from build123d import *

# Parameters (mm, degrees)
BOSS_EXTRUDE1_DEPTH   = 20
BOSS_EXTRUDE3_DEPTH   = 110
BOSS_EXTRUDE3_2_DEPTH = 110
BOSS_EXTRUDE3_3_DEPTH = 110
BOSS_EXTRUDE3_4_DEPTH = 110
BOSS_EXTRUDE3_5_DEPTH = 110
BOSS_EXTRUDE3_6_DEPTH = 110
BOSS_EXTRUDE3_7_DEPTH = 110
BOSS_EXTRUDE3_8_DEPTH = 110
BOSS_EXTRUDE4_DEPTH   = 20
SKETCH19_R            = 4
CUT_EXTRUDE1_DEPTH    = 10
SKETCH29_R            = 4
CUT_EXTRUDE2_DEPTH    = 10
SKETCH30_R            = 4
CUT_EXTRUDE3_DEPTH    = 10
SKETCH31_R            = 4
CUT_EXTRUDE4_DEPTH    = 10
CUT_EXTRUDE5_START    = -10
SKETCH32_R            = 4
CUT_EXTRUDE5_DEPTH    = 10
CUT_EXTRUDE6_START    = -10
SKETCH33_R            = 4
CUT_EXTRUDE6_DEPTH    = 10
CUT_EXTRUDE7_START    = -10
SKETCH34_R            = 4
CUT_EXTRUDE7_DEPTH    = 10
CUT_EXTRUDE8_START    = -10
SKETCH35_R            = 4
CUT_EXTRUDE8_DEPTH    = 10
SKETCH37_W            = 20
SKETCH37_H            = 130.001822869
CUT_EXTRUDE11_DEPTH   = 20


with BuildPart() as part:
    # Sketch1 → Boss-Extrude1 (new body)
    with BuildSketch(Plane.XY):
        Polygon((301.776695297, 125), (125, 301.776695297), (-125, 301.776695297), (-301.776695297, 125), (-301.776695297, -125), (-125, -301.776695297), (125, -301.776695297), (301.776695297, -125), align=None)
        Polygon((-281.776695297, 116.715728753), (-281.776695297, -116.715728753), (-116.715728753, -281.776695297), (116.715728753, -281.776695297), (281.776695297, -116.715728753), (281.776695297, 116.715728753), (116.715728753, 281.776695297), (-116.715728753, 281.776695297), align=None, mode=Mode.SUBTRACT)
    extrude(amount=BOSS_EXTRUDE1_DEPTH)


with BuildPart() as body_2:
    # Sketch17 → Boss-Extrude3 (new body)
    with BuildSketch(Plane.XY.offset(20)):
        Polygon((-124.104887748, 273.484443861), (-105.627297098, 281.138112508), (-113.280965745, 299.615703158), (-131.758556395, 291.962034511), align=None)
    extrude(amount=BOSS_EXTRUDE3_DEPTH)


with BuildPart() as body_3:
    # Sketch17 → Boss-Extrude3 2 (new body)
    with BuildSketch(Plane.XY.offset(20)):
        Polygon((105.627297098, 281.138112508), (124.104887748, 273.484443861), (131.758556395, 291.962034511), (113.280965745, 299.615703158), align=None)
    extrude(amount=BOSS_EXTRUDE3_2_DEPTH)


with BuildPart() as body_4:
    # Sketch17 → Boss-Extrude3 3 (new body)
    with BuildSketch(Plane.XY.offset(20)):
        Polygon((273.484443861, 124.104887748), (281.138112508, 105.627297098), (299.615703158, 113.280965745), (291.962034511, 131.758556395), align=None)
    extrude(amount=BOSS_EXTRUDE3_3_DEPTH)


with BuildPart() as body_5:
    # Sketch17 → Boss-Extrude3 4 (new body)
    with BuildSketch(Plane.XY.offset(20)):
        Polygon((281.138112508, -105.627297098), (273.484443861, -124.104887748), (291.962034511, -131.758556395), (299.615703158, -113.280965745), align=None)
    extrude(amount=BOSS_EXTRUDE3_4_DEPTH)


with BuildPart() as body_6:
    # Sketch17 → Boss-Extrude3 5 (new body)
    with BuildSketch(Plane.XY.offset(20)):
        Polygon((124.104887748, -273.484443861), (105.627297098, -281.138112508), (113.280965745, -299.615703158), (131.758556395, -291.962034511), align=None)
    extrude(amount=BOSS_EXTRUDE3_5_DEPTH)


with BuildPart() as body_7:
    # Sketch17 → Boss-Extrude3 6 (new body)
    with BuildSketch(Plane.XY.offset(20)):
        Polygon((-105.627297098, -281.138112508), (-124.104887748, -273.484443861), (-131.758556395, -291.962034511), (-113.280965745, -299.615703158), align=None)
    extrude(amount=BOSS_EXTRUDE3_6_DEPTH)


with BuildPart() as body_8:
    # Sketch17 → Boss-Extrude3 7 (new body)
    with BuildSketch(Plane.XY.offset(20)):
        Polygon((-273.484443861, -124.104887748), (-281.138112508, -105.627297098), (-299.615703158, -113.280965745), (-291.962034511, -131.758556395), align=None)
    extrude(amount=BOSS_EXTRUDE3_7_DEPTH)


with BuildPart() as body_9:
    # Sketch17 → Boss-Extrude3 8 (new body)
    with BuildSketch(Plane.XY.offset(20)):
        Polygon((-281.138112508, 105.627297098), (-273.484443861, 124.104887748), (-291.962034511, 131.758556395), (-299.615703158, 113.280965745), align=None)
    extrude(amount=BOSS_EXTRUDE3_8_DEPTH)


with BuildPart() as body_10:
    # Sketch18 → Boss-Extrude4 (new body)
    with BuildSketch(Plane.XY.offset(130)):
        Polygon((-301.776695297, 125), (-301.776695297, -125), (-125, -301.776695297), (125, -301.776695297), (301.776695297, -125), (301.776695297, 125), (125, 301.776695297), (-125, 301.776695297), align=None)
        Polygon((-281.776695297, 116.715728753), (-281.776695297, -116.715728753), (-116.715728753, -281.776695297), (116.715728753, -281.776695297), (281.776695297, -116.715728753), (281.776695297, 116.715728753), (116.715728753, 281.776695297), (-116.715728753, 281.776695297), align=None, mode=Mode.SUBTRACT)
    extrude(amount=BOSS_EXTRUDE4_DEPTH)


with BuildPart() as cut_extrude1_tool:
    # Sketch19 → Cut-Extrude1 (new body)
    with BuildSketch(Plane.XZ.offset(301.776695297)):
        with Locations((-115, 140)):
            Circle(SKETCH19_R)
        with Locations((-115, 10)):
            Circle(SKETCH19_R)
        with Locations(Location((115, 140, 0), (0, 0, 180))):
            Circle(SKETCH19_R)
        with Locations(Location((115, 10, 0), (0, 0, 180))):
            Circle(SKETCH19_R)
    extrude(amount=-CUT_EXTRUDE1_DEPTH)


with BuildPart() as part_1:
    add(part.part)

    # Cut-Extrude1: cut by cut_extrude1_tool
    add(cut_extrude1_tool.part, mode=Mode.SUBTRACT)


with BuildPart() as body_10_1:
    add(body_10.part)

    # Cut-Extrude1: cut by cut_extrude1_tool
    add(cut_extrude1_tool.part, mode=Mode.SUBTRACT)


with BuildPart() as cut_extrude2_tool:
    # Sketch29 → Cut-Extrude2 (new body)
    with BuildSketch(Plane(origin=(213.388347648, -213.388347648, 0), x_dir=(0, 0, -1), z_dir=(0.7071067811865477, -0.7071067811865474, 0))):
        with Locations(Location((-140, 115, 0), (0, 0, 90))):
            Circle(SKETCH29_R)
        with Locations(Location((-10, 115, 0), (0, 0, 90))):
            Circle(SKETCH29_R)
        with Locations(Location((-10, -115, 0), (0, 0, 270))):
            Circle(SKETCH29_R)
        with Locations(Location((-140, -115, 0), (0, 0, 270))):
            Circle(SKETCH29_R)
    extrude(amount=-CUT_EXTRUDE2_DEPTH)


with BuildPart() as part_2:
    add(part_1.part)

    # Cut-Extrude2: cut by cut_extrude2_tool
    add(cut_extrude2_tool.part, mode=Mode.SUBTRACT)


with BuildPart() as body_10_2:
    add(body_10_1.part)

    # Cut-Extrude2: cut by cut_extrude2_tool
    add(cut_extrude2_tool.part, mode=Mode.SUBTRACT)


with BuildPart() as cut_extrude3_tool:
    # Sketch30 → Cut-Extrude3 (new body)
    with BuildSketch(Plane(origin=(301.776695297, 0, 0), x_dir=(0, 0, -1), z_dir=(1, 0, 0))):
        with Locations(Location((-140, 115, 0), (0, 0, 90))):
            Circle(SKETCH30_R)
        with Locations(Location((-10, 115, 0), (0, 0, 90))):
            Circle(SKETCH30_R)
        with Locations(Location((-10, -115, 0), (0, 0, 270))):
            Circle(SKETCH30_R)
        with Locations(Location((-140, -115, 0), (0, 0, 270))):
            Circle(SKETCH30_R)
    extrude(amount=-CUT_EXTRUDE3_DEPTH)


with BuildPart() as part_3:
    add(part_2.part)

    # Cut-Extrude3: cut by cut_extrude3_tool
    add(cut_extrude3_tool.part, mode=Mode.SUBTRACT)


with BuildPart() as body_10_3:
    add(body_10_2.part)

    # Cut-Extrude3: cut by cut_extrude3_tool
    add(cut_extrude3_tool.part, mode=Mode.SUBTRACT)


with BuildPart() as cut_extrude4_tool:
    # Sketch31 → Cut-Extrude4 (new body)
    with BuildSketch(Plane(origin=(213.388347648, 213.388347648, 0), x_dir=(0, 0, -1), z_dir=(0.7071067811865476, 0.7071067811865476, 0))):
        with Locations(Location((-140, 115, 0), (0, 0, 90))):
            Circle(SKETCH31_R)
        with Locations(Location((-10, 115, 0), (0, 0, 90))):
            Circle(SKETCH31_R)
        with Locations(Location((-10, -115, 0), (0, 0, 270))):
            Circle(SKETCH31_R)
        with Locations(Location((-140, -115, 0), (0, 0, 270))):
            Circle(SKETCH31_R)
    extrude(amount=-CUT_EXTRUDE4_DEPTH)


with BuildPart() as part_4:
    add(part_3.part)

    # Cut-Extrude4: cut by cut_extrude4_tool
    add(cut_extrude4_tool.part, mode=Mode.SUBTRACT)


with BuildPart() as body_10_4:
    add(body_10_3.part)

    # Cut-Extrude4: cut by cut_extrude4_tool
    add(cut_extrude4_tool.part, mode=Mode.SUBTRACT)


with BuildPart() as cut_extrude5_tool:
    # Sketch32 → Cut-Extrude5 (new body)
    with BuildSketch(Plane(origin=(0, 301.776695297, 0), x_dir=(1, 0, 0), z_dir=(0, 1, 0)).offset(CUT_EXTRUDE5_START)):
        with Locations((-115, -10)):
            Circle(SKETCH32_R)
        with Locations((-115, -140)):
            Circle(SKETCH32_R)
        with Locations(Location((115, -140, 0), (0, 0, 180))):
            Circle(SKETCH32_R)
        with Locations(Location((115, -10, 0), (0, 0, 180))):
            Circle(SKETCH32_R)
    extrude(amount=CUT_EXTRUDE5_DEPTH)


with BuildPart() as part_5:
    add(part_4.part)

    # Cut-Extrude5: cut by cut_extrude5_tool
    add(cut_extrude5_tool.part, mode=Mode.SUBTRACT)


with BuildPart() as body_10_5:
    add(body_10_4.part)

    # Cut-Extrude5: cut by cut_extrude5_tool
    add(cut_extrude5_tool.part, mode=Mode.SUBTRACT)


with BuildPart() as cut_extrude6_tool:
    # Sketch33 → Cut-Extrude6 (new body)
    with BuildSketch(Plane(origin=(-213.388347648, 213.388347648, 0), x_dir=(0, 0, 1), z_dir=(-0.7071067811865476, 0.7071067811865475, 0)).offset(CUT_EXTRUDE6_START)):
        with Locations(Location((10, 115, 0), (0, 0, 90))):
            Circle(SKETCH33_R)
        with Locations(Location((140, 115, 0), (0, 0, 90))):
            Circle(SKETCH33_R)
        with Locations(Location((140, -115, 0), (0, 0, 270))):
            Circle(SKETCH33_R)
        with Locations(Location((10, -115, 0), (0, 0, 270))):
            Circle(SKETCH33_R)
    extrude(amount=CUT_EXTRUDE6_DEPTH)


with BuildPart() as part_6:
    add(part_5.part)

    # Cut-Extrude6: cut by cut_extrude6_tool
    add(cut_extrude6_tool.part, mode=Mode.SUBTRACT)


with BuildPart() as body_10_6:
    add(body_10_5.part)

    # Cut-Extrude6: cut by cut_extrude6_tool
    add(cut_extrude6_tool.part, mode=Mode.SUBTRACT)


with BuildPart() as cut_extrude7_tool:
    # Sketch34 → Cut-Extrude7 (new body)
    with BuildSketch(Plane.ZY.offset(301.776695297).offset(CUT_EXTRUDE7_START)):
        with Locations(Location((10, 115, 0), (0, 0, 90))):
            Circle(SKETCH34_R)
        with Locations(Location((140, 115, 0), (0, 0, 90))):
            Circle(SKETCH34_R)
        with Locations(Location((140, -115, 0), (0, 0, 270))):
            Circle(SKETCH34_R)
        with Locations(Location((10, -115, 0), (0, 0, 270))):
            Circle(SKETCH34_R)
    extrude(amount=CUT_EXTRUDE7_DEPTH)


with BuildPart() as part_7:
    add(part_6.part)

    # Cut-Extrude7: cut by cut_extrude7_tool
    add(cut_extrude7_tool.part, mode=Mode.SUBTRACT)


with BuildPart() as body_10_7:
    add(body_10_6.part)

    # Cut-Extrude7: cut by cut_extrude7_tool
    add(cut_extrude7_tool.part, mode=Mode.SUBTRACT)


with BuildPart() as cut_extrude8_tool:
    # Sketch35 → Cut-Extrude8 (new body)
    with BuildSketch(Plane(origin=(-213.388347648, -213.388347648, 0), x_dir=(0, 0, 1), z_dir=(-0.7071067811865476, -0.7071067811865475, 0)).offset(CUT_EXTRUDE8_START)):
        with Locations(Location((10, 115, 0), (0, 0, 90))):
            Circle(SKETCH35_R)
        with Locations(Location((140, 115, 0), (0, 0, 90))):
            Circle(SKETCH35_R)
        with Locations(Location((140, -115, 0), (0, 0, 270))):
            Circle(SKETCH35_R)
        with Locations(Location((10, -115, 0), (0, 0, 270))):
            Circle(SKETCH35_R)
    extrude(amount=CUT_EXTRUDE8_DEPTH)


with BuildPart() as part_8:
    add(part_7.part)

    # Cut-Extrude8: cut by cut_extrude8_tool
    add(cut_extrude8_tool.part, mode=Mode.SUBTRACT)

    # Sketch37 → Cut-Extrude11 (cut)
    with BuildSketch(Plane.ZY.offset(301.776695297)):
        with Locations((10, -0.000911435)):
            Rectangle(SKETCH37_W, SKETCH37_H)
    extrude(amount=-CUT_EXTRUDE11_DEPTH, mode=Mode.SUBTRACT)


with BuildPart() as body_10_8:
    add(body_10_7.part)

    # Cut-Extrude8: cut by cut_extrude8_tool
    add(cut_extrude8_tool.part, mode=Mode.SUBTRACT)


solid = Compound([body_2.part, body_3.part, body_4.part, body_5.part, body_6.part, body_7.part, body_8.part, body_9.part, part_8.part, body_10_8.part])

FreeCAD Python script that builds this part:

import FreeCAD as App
import Part
import Sketcher
Q = App.Units.Quantity

doc = App.newDocument("Part")
body = doc.addObject("PartDesign::Body", "Body")

sketch1 = body.newObject("Sketcher::SketchObject", "Sketch")
sketch1.AttachmentSupport = (doc.getObject("XY_Plane"), [""])
sketch1.MapMode = "FlatFace"
sketch1.addGeometry([
    Part.LineSegment(App.Vector(301.776695, 125, 0), App.Vector(125, 301.776695, 0)),
    Part.LineSegment(App.Vector(125, 301.776695, 0), App.Vector(-125, 301.776695, 0)),
    Part.LineSegment(App.Vector(-125, 301.776695, 0), App.Vector(-301.776695, 125, 0)),
    Part.LineSegment(App.Vector(-301.776695, 125, 0), App.Vector(-301.776695, -125, 0)),
    Part.LineSegment(App.Vector(-301.776695, -125, 0), App.Vector(-125, -301.776695, 0)),
    Part.LineSegment(App.Vector(-125, -301.776695, 0), App.Vector(125, -301.776695, 0)),
    Part.LineSegment(App.Vector(125, -301.776695, 0), App.Vector(301.776695, -125, 0)),
    Part.LineSegment(App.Vector(301.776695, -125, 0), App.Vector(301.776695, 125, 0)),
    Part.LineSegment(App.Vector(-281.776695, -116.715729, 0), App.Vector(-281.776695, 116.715729, 0)),
    Part.LineSegment(App.Vector(-281.776695, 116.715729, 0), App.Vector(-116.715729, 281.776695, 0)),
    Part.LineSegment(App.Vector(-116.715729, 281.776695, 0), App.Vector(116.715729, 281.776695, 0)),
    Part.LineSegment(App.Vector(116.715729, 281.776695, 0), App.Vector(281.776695, 116.715729, 0)),
    Part.LineSegment(App.Vector(281.776695, 116.715729, 0), App.Vector(281.776695, -116.715729, 0)),
    Part.LineSegment(App.Vector(281.776695, -116.715729, 0), App.Vector(116.715729, -281.776695, 0)),
    Part.LineSegment(App.Vector(116.715729, -281.776695, 0), App.Vector(-116.715729, -281.776695, 0)),
    Part.LineSegment(App.Vector(-116.715729, -281.776695, 0), App.Vector(-281.776695, -116.715729, 0)),
], False)
sketch1.addConstraint([
    Sketcher.Constraint("Coincident", 0, 2, 1, 1),
    Sketcher.Constraint("Coincident", 1, 2, 2, 1),
    Sketcher.Constraint("Coincident", 2, 2, 3, 1),
    Sketcher.Constraint("Coincident", 3, 2, 4, 1),
    Sketcher.Constraint("Coincident", 4, 2, 5, 1),
    Sketcher.Constraint("Coincident", 5, 2, 6, 1),
    Sketcher.Constraint("Coincident", 6, 2, 7, 1),
    Sketcher.Constraint("Coincident", 7, 2, 0, 1),
    Sketcher.Constraint("Coincident", 8, 2, 9, 1),
    Sketcher.Constraint("Coincident", 9, 2, 10, 1),
    Sketcher.Constraint("Coincident", 10, 2, 11, 1),
    Sketcher.Constraint("Coincident", 11, 2, 12, 1),
    Sketcher.Constraint("Coincident", 12, 2, 13, 1),
    Sketcher.Constraint("Coincident", 13, 2, 14, 1),
    Sketcher.Constraint("Coincident", 14, 2, 15, 1),
    Sketcher.Constraint("Coincident", 15, 2, 8, 1),
    Sketcher.Constraint("Horizontal", 1),
    Sketcher.Constraint("Vertical", 3),
    Sketcher.Constraint("Horizontal", 5),
    Sketcher.Constraint("Vertical", 7),
    Sketcher.Constraint("Vertical", 8),
    Sketcher.Constraint("Horizontal", 10),
    Sketcher.Constraint("Vertical", 12),
    Sketcher.Constraint("Horizontal", 14),
    Sketcher.Constraint("Symmetric", 0, 2, 4, 2, -1, 1),
    Sketcher.Constraint("Symmetric", 2, 2, 6, 2, -1, 1),
    Sketcher.Constraint("Symmetric", 8, 2, 12, 2, -1, 1),
    Sketcher.Constraint("Symmetric", 9, 2, 13, 2, -1, 1),
    Sketcher.Constraint("Perpendicular", 0, 2),
    Sketcher.Constraint("Perpendicular", 2, 4),
    Sketcher.Constraint("Perpendicular", 4, 6),
    Sketcher.Constraint("Parallel", 6, 9),
    Sketcher.Constraint("Perpendicular", 9, 11),
    Sketcher.Constraint("Perpendicular", 13, 15),
    Sketcher.Constraint("Horizontal", 3, 2, 6, 2),
    Sketcher.Constraint("Horizontal", 8, 2, 11, 2),
    Sketcher.Constraint("Horizontal", 12, 2, 15, 2),
    Sketcher.Constraint("Vertical", 1, 2, 4, 2),
    Sketcher.Constraint("Equal", 5, 3),
    Sketcher.Constraint("Equal", 14, 8),
    Sketcher.Constraint("DistanceX", 1, 2, 1, 1, Q("250 mm")),
    Sketcher.Constraint("Distance", 0, Q("250 mm")),
    Sketcher.Constraint("DistanceX", 2, 2, 8, 2, Q("20 mm")),
    Sketcher.Constraint("DistanceX", 10, 1, 10, 2, Q("233.431458 mm")),
])
pad1 = body.newObject("PartDesign::Pad", "Pad")
pad1.Profile = sketch1
pad1.Length = 20
body2 = doc.addObject("PartDesign::Body", "Body001")

sketch2 = body2.newObject("Sketcher::SketchObject", "Sketch001")
sketch2.AttachmentSupport = (doc.getObject("XY_Plane001"), [""])
sketch2.MapMode = "FlatFace"
sketch2.AttachmentOffset = App.Placement(App.Vector(0, 0, 20), App.Rotation())
sketch2.addGeometry([
    Part.LineSegment(App.Vector(-124.104888, 273.484444, 0), App.Vector(-105.627297, 281.138113, 0)),
    Part.LineSegment(App.Vector(-105.627297, 281.138113, 0), App.Vector(-113.280966, 299.615703, 0)),
    Part.LineSegment(App.Vector(-113.280966, 299.615703, 0), App.Vector(-131.758556, 291.962035, 0)),
    Part.LineSegment(App.Vector(-131.758556, 291.962035, 0), App.Vector(-124.104888, 273.484444, 0)),
], False)
sketch2.addConstraint([
    Sketcher.Constraint("Coincident", 0, 2, 1, 1),
    Sketcher.Constraint("Coincident", 1, 2, 2, 1),
    Sketcher.Constraint("Coincident", 2, 2, 3, 1),
    Sketcher.Constraint("Coincident", 3, 2, 0, 1),
    Sketcher.Constraint("Perpendicular", 0, 1),
    Sketcher.Constraint("Perpendicular", 1, 2),
    Sketcher.Constraint("Perpendicular", 2, 3),
    Sketcher.Constraint("Equal", 0, 1),
    Sketcher.Constraint("Distance", 0, Q("20 mm")),
    Sketcher.Constraint("Angle", 0, Q("22.5 deg")),
    Sketcher.Constraint("DistanceX", 0, 2, -1, 1, Q("105.627297 mm")),
    Sketcher.Constraint("DistanceY", -1, 1, 0, 2, Q("281.138113 mm")),
])
pad2 = body2.newObject("PartDesign::Pad", "Pad001")
pad2.Profile = sketch2
pad2.Length = 110
body3 = doc.addObject("PartDesign::Body", "Body002")

sketch3 = body3.newObject("Sketcher::SketchObject", "Sketch002")
sketch3.AttachmentSupport = (doc.getObject("XY_Plane002"), [""])
sketch3.MapMode = "FlatFace"
sketch3.AttachmentOffset = App.Placement(App.Vector(0, 0, 20), App.Rotation())
sketch3.addGeometry([
    Part.LineSegment(App.Vector(105.627297, 281.138113, 0), App.Vector(124.104888, 273.484444, 0)),
    Part.LineSegment(App.Vector(124.104888, 273.484444, 0), App.Vector(131.758556, 291.962035, 0)),
    Part.LineSegment(App.Vector(131.758556, 291.962035, 0), App.Vector(113.280966, 299.615703, 0)),
    Part.LineSegment(App.Vector(113.280966, 299.615703, 0), App.Vector(105.627297, 281.138113, 0)),
], False)
sketch3.addConstraint([
    Sketcher.Constraint("Coincident", 0, 2, 1, 1),
    Sketcher.Constraint("Coincident", 1, 2, 2, 1),
    Sketcher.Constraint("Coincident", 2, 2, 3, 1),
    Sketcher.Constraint("Coincident", 3, 2, 0, 1),
    Sketcher.Constraint("Perpendicular", 0, 1),
    Sketcher.Constraint("Perpendicular", 1, 2),
    Sketcher.Constraint("Perpendicular", 2, 3),
    Sketcher.Constraint("Equal", 0, 1),
    Sketcher.Constraint("Distance", 0, Q("20 mm")),
    Sketcher.Constraint("Angle", 0, Q("-22.5 deg")),
    Sketcher.Constraint("DistanceX", -1, 1, 0, 2, Q("124.104888 mm")),
    Sketcher.Constraint("DistanceY", -1, 1, 0, 2, Q("273.484444 mm")),
])
pad3 = body3.newObject("PartDesign::Pad", "Pad002")
pad3.Profile = sketch3
pad3.Length = 110
body4 = doc.addObject("PartDesign::Body", "Body003")

sketch4 = body4.newObject("Sketcher::SketchObject", "Sketch003")
sketch4.AttachmentSupport = (doc.getObject("XY_Plane003"), [""])
sketch4.MapMode = "FlatFace"
sketch4.AttachmentOffset = App.Placement(App.Vector(0, 0, 20), App.Rotation())
sketch4.addGeometry([
    Part.LineSegment(App.Vector(273.484444, 124.104888, 0), App.Vector(281.138113, 105.627297, 0)),
    Part.LineSegment(App.Vector(281.138113, 105.627297, 0), App.Vector(299.615703, 113.280966, 0)),
    Part.LineSegment(App.Vector(299.615703, 113.280966, 0), App.Vector(291.962035, 131.758556, 0)),
    Part.LineSegment(App.Vector(291.962035, 131.758556, 0), App.Vector(273.484444, 124.104888, 0)),
], False)
sketch4.addConstraint([
    Sketcher.Constraint("Coincident", 0, 2, 1, 1),
    Sketcher.Constraint("Coincident", 1, 2, 2, 1),
    Sketcher.Constraint("Coincident", 2, 2, 3, 1),
    Sketcher.Constraint("Coincident", 3, 2, 0, 1),
    Sketcher.Constraint("Perpendicular", 0, 1),
    Sketcher.Constraint("Perpendicular", 1, 2),
    Sketcher.Constraint("Perpendicular", 2, 3),
    Sketcher.Constraint("Equal", 0, 1),
    Sketcher.Constraint("Distance", 0, Q("20 mm")),
    Sketcher.Constraint("Angle", 0, Q("-67.5 deg")),
    Sketcher.Constraint("DistanceX", -1, 1, 0, 2, Q("281.138113 mm")),
    Sketcher.Constraint("DistanceY", -1, 1, 0, 2, Q("105.627297 mm")),
])
pad4 = body4.newObject("PartDesign::Pad", "Pad003")
pad4.Profile = sketch4
pad4.Length = 110
body5 = doc.addObject("PartDesign::Body", "Body004")

sketch5 = body5.newObject("Sketcher::SketchObject", "Sketch004")
sketch5.AttachmentSupport = (doc.getObject("XY_Plane004"), [""])
sketch5.MapMode = "FlatFace"
sketch5.AttachmentOffset = App.Placement(App.Vector(0, 0, 20), App.Rotation())
sketch5.addGeometry([
    Part.LineSegment(App.Vector(281.138113, -105.627297, 0), App.Vector(273.484444, -124.104888, 0)),
    Part.LineSegment(App.Vector(273.484444, -124.104888, 0), App.Vector(291.962035, -131.758556, 0)),
    Part.LineSegment(App.Vector(291.962035, -131.758556, 0), App.Vector(299.615703, -113.280966, 0)),
    Part.LineSegment(App.Vector(299.615703, -113.280966, 0), App.Vector(281.138113, -105.627297, 0)),
], False)
sketch5.addConstraint([
    Sketcher.Constraint("Coincident", 0, 2, 1, 1),
    Sketcher.Constraint("Coincident", 1, 2, 2, 1),
    Sketcher.Constraint("Coincident", 2, 2, 3, 1),
    Sketcher.Constraint("Coincident", 3, 2, 0, 1),
    Sketcher.Constraint("Perpendicular", 0, 1),
    Sketcher.Constraint("Perpendicular", 1, 2),
    Sketcher.Constraint("Perpendicular", 2, 3),
    Sketcher.Constraint("Equal", 0, 1),
    Sketcher.Constraint("Distance", 0, Q("20 mm")),
    Sketcher.Constraint("Angle", 0, Q("-112.5 deg")),
    Sketcher.Constraint("DistanceX", -1, 1, 0, 2, Q("273.484444 mm")),
    Sketcher.Constraint("DistanceY", 0, 2, -1, 1, Q("124.104888 mm")),
])
pad5 = body5.newObject("PartDesign::Pad", "Pad004")
pad5.Profile = sketch5
pad5.Length = 110
body6 = doc.addObject("PartDesign::Body", "Body005")

sketch6 = body6.newObject("Sketcher::SketchObject", "Sketch005")
sketch6.AttachmentSupport = (doc.getObject("XY_Plane005"), [""])
sketch6.MapMode = "FlatFace"
sketch6.AttachmentOffset = App.Placement(App.Vector(0, 0, 20), App.Rotation())
sketch6.addGeometry([
    Part.LineSegment(App.Vector(124.104888, -273.484444, 0), App.Vector(105.627297, -281.138113, 0)),
    Part.LineSegment(App.Vector(105.627297, -281.138113, 0), App.Vector(113.280966, -299.615703, 0)),
    Part.LineSegment(App.Vector(113.280966, -299.615703, 0), App.Vector(131.758556, -291.962035, 0)),
    Part.LineSegment(App.Vector(131.758556, -291.962035, 0), App.Vector(124.104888, -273.484444, 0)),
], False)
sketch6.addConstraint([
    Sketcher.Constraint("Coincident", 0, 2, 1, 1),
    Sketcher.Constraint("Coincident", 1, 2, 2, 1),
    Sketcher.Constraint("Coincident", 2, 2, 3, 1),
    Sketcher.Constraint("Coincident", 3, 2, 0, 1),
    Sketcher.Constraint("Perpendicular", 0, 1),
    Sketcher.Constraint("Perpendicular", 1, 2),
    Sketcher.Constraint("Perpendicular", 2, 3),
    Sketcher.Constraint("Equal", 0, 1),
    Sketcher.Constraint("Distance", 0, Q("20 mm")),
    Sketcher.Constraint("Angle", 0, Q("-157.5 deg")),
    Sketcher.Constraint("DistanceX", -1, 1, 0, 2, Q("105.627297 mm")),
    Sketcher.Constraint("DistanceY", 0, 2, -1, 1, Q("281.138113 mm")),
])
pad6 = body6.newObject("PartDesign::Pad", "Pad005")
pad6.Profile = sketch6
pad6.Length = 110
body7 = doc.addObject("PartDesign::Body", "Body006")

sketch7 = body7.newObject("Sketcher::SketchObject", "Sketch006")
sketch7.AttachmentSupport = (doc.getObject("XY_Plane006"), [""])
sketch7.MapMode = "FlatFace"
sketch7.AttachmentOffset = App.Placement(App.Vector(0, 0, 20), App.Rotation())
sketch7.addGeometry([
    Part.LineSegment(App.Vector(-105.627297, -281.138113, 0), App.Vector(-124.104888, -273.484444, 0)),
    Part.LineSegment(App.Vector(-124.104888, -273.484444, 0), App.Vector(-131.758556, -291.962035, 0)),
    Part.LineSegment(App.Vector(-131.758556, -291.962035, 0), App.Vector(-113.280966, -299.615703, 0)),
    Part.LineSegment(App.Vector(-113.280966, -299.615703, 0), App.Vector(-105.627297, -281.138113, 0)),
], False)
sketch7.addConstraint([
    Sketcher.Constraint("Coincident", 0, 2, 1, 1),
    Sketcher.Constraint("Coincident", 1, 2, 2, 1),
    Sketcher.Constraint("Coincident", 2, 2, 3, 1),
    Sketcher.Constraint("Coincident", 3, 2, 0, 1),
    Sketcher.Constraint("Perpendicular", 0, 1),
    Sketcher.Constraint("Perpendicular", 1, 2),
    Sketcher.Constraint("Perpendicular", 2, 3),
    Sketcher.Constraint("Equal", 0, 1),
    Sketcher.Constraint("Distance", 0, Q("20 mm")),
    Sketcher.Constraint("Angle", 0, Q("157.5 deg")),
    Sketcher.Constraint("DistanceX", 0, 2, -1, 1, Q("124.104888 mm")),
    Sketcher.Constraint("DistanceY", 0, 2, -1, 1, Q("273.484444 mm")),
])
pad7 = body7.newObject("PartDesign::Pad", "Pad006")
pad7.Profile = sketch7
pad7.Length = 110
body8 = doc.addObject("PartDesign::Body", "Body007")

sketch8 = body8.newObject("Sketcher::SketchObject", "Sketch007")
sketch8.AttachmentSupport = (doc.getObject("XY_Plane007"), [""])
sketch8.MapMode = "FlatFace"
sketch8.AttachmentOffset = App.Placement(App.Vector(0, 0, 20), App.Rotation())
sketch8.addGeometry([
    Part.LineSegment(App.Vector(-273.484444, -124.104888, 0), App.Vector(-281.138113, -105.627297, 0)),
    Part.LineSegment(App.Vector(-281.138113, -105.627297, 0), App.Vector(-299.615703, -113.280966, 0)),
    Part.LineSegment(App.Vector(-299.615703, -113.280966, 0), App.Vector(-291.962035, -131.758556, 0)),
    Part.LineSegment(App.Vector(-291.962035, -131.758556, 0), App.Vector(-273.484444, -124.104888, 0)),
], False)
sketch8.addConstraint([
    Sketcher.Constraint("Coincident", 0, 2, 1, 1),
    Sketcher.Constraint("Coincident", 1, 2, 2, 1),
    Sketcher.Constraint("Coincident", 2, 2, 3, 1),
    Sketcher.Constraint("Coincident", 3, 2, 0, 1),
    Sketcher.Constraint("Perpendicular", 0, 1),
    Sketcher.Constraint("Perpendicular", 1, 2),
    Sketcher.Constraint("Perpendicular", 2, 3),
    Sketcher.Constraint("Equal", 0, 1),
    Sketcher.Constraint("Distance", 0, Q("20 mm")),
    Sketcher.Constraint("Angle", 0, Q("112.5 deg")),
    Sketcher.Constraint("DistanceX", 0, 2, -1, 1, Q("281.138113 mm")),
    Sketcher.Constraint("DistanceY", 0, 2, -1, 1, Q("105.627297 mm")),
])
pad8 = body8.newObject("PartDesign::Pad", "Pad007")
pad8.Profile = sketch8
pad8.Length = 110
body9 = doc.addObject("PartDesign::Body", "Body008")

sketch9 = body9.newObject("Sketcher::SketchObject", "Sketch008")
sketch9.AttachmentSupport = (doc.getObject("XY_Plane008"), [""])
sketch9.MapMode = "FlatFace"
sketch9.AttachmentOffset = App.Placement(App.Vector(0, 0, 20), App.Rotation())
sketch9.addGeometry([
    Part.LineSegment(App.Vector(-281.138113, 105.627297, 0), App.Vector(-273.484444, 124.104888, 0)),
    Part.LineSegment(App.Vector(-273.484444, 124.104888, 0), App.Vector(-291.962035, 131.758556, 0)),
    Part.LineSegment(App.Vector(-291.962035, 131.758556, 0), App.Vector(-299.615703, 113.280966, 0)),
    Part.LineSegment(App.Vector(-299.615703, 113.280966, 0), App.Vector(-281.138113, 105.627297, 0)),
], False)
sketch9.addConstraint([
    Sketcher.Constraint("Coincident", 0, 2, 1, 1),
    Sketcher.Constraint("Coincident", 1, 2, 2, 1),
    Sketcher.Constraint("Coincident", 2, 2, 3, 1),
    Sketcher.Constraint("Coincident", 3, 2, 0, 1),
    Sketcher.Constraint("Perpendicular", 0, 1),
    Sketcher.Constraint("Perpendicular", 1, 2),
    Sketcher.Constraint("Perpendicular", 2, 3),
    Sketcher.Constraint("Equal", 0, 1),
    Sketcher.Constraint("Distance", 0, Q("20 mm")),
    Sketcher.Constraint("Angle", 0, Q("67.5 deg")),
    Sketcher.Constraint("DistanceX", 0, 2, -1, 1, Q("273.484444 mm")),
    Sketcher.Constraint("DistanceY", -1, 1, 0, 2, Q("124.104888 mm")),
])
pad9 = body9.newObject("PartDesign::Pad", "Pad008")
pad9.Profile = sketch9
pad9.Length = 110
body10 = doc.addObject("PartDesign::Body", "Body009")

sketch10 = body10.newObject("Sketcher::SketchObject", "Sketch009")
sketch10.AttachmentSupport = (doc.getObject("XY_Plane009"), [""])
sketch10.MapMode = "FlatFace"
sketch10.AttachmentOffset = App.Placement(App.Vector(0, 0, 130), App.Rotation())
sketch10.addGeometry([
    Part.LineSegment(App.Vector(-301.776695, 125, 0), App.Vector(-301.776695, -125, 0)),
    Part.LineSegment(App.Vector(-301.776695, -125, 0), App.Vector(-125, -301.776695, 0)),
    Part.LineSegment(App.Vector(-125, -301.776695, 0), App.Vector(125, -301.776695, 0)),
    Part.LineSegment(App.Vector(125, -301.776695, 0), App.Vector(301.776695, -125, 0)),
    Part.LineSegment(App.Vector(301.776695, -125, 0), App.Vector(301.776695, 125, 0)),
    Part.LineSegment(App.Vector(301.776695, 125, 0), App.Vector(125, 301.776695, 0)),
    Part.LineSegment(App.Vector(125, 301.776695, 0), App.Vector(-125, 301.776695, 0)),
    Part.LineSegment(App.Vector(-125, 301.776695, 0), App.Vector(-301.776695, 125, 0)),
    Part.LineSegment(App.Vector(-281.776695, -116.715729, 0), App.Vector(-281.776695, 116.715729, 0)),
    Part.LineSegment(App.Vector(-281.776695, 116.715729, 0), App.Vector(-116.715729, 281.776695, 0)),
    Part.LineSegment(App.Vector(-116.715729, 281.776695, 0), App.Vector(116.715729, 281.776695, 0)),
    Part.LineSegment(App.Vector(116.715729, 281.776695, 0), App.Vector(281.776695, 116.715729, 0)),
    Part.LineSegment(App.Vector(281.776695, 116.715729, 0), App.Vector(281.776695, -116.715729, 0)),
    Part.LineSegment(App.Vector(281.776695, -116.715729, 0), App.Vector(116.715729, -281.776695, 0)),
    Part.LineSegment(App.Vector(116.715729, -281.776695, 0), App.Vector(-116.715729, -281.776695, 0)),
    Part.LineSegment(App.Vector(-116.715729, -281.776695, 0), App.Vector(-281.776695, -116.715729, 0)),
], False)
sketch10.addConstraint([
    Sketcher.Constraint("Coincident", 0, 2, 1, 1),
    Sketcher.Constraint("Coincident", 1, 2, 2, 1),
    Sketcher.Constraint("Coincident", 2, 2, 3, 1),
    Sketcher.Constraint("Coincident", 3, 2, 4, 1),
    Sketcher.Constraint("Coincident", 4, 2, 5, 1),
    Sketcher.Constraint("Coincident", 5, 2, 6, 1),
    Sketcher.Constraint("Coincident", 6, 2, 7, 1),
    Sketcher.Constraint("Coincident", 7, 2, 0, 1),
    Sketcher.Constraint("Coincident", 8, 2, 9, 1),
    Sketcher.Constraint("Coincident", 9, 2, 10, 1),
    Sketcher.Constraint("Coincident", 10, 2, 11, 1),
    Sketcher.Constraint("Coincident", 11, 2, 12, 1),
    Sketcher.Constraint("Coincident", 12, 2, 13, 1),
    Sketcher.Constraint("Coincident", 13, 2, 14, 1),
    Sketcher.Constraint("Coincident", 14, 2, 15, 1),
    Sketcher.Constraint("Coincident", 15, 2, 8, 1),
    Sketcher.Constraint("Vertical", 0),
    Sketcher.Constraint("Horizontal", 2),
    Sketcher.Constraint("Vertical", 4),
    Sketcher.Constraint("Horizontal", 6),
    Sketcher.Constraint("Vertical", 8),
    Sketcher.Constraint("Horizontal", 10),
    Sketcher.Constraint("Vertical", 12),
    Sketcher.Constraint("Horizontal", 14),
    Sketcher.Constraint("Symmetric", 0, 2, 4, 2, -1, 1),
    Sketcher.Constraint("Symmetric", 1, 2, 5, 2, -1, 1),
    Sketcher.Constraint("Symmetric", 8, 2, 12, 2, -1, 1),
    Sketcher.Constraint("Symmetric", 9, 2, 13, 2, -1, 1),
    Sketcher.Constraint("Perpendicular", 1, 3),
    Sketcher.Constraint("Perpendicular", 5, 7),
    Sketcher.Constraint("Parallel", 7, 9),
    Sketcher.Constraint("Perpendicular", 9, 11),
    Sketcher.Constraint("Perpendicular", 13, 15),
    Sketcher.Constraint("Horizontal", 0, 2, 3, 2),
    Sketcher.Constraint("Horizontal", 4, 2, 7, 2),
    Sketcher.Constraint("Horizontal", 8, 2, 11, 2),
    Sketcher.Constraint("Horizontal", 12, 2, 15, 2),
    Sketcher.Constraint("Vertical", 2, 2, 5, 2),
    Sketcher.Constraint("Equal", 6, 0),
    Sketcher.Constraint("Equal", 14, 8),
    Sketcher.Constraint("DistanceX", 2, 1, 2, 2, Q("250 mm")),
    Sketcher.Constraint("Distance", 1, Q("250 mm")),
    Sketcher.Constraint("DistanceX", 7, 2, 8, 2, Q("20 mm")),
    Sketcher.Constraint("DistanceX", 10, 1, 10, 2, Q("233.431458 mm")),
])
pad10 = body10.newObject("PartDesign::Pad", "Pad009")
pad10.Profile = sketch10
pad10.Length = 20
body11 = doc.addObject("PartDesign::Body", "Body010")
body11.AllowCompound = True

sketch11 = body11.newObject("Sketcher::SketchObject", "Sketch010")
sketch11.AttachmentSupport = (doc.getObject("XZ_Plane010"), [""])
sketch11.MapMode = "FlatFace"
sketch11.AttachmentOffset = App.Placement(App.Vector(0, 0, 301.776695), App.Rotation())
sketch11.addGeometry([
    Part.Circle(App.Vector(-115, 140, 0), App.Vector(0, 0, 1), 4),
    Part.Circle(App.Vector(-115, 10, 0), App.Vector(0, 0, 1), 4),
    Part.Circle(App.Vector(115, 140, 0), App.Vector(0, 0, 1), 4),
    Part.Circle(App.Vector(115, 10, 0), App.Vector(0, 0, 1), 4),
], False)
sketch11.addConstraint([
    Sketcher.Constraint("Equal", 0, 1),
    Sketcher.Constraint("Equal", 1, 2),
    Sketcher.Constraint("Equal", 2, 3),
    Sketcher.Constraint("Symmetric", 0, 3, 2, 3, -2),
    Sketcher.Constraint("Symmetric", 1, 3, 3, 3, -2),
    Sketcher.Constraint("Vertical", 0, 3, 1, 3),
    Sketcher.Constraint("Diameter", 0, Q("8 mm")),
    Sketcher.Constraint("DistanceX", 0, 3, -1, 1, Q("115 mm")),
    Sketcher.Constraint("DistanceY", -1, 1, 0, 3, Q("140 mm")),
    Sketcher.Constraint("DistanceY", -1, 1, 1, 3, Q("10 mm")),
])
pad11 = body11.newObject("PartDesign::Pad", "Pad010")
pad11.Profile = sketch11
pad11.Length = 10
pad11.Reversed = True
doc.recompute()

body12 = doc.addObject("PartDesign::Body", "Body011")
body12.BaseFeature = body11
boolean = body.newObject("PartDesign::Boolean", "Boolean")
boolean.Type = "Cut"
boolean.addObjects([body12])
doc.recompute()

boolean2 = body10.newObject("PartDesign::Boolean", "Boolean001")
boolean2.Type = "Cut"
boolean2.addObjects([body11])
body13 = doc.addObject("PartDesign::Body", "Body012")
body13.AllowCompound = True

sketch12 = body13.newObject("Sketcher::SketchObject", "Sketch011")
sketch12.Placement = App.Placement(App.Vector(213.388348, -213.388348, 0), App.Rotation(App.Vector(0, 0, -1), App.Vector(0.707106781, 0.707106781, 0), App.Vector(0.707106781, -0.707106781, 0), "ZXY"))
sketch12.addGeometry([
    Part.Circle(App.Vector(-140, 115, 0), App.Vector(0, 0, 1), 4),
    Part.Circle(App.Vector(-10, 115, 0), App.Vector(0, 0, 1), 4),
    Part.Circle(App.Vector(-10, -115, 0), App.Vector(0, 0, 1), 4),
    Part.Circle(App.Vector(-140, -115, 0), App.Vector(0, 0, 1), 4),
], False)
sketch12.addConstraint([
    Sketcher.Constraint("Equal", 0, 1),
    Sketcher.Constraint("Equal", 1, 2),
    Sketcher.Constraint("Equal", 2, 3),
    Sketcher.Constraint("Symmetric", 1, 3, 2, 3, -1),
    Sketcher.Constraint("Symmetric", 0, 3, 3, 3, -1),
    Sketcher.Constraint("Horizontal", 0, 3, 1, 3),
    Sketcher.Constraint("Diameter", 0, Q("8 mm")),
    Sketcher.Constraint("DistanceX", 0, 3, -1, 1, Q("140 mm")),
    Sketcher.Constraint("DistanceY", -1, 1, 0, 3, Q("115 mm")),
    Sketcher.Constraint("DistanceX", 1, 3, -1, 1, Q("10 mm")),
])
pad12 = body13.newObject("PartDesign::Pad", "Pad011")
pad12.Profile = sketch12
pad12.Length = 10
pad12.Reversed = True
doc.recompute()

body14 = doc.addObject("PartDesign::Body", "Body013")
body14.BaseFeature = body13
boolean3 = body.newObject("PartDesign::Boolean", "Boolean002")
boolean3.Type = "Cut"
boolean3.addObjects([body14])
doc.recompute()

boolean4 = body10.newObject("PartDesign::Boolean", "Boolean003")
boolean4.Type = "Cut"
boolean4.addObjects([body13])
body15 = doc.addObject("PartDesign::Body", "Body014")
body15.AllowCompound = True

sketch13 = body15.newObject("Sketcher::SketchObject", "Sketch012")
sketch13.AttachmentSupport = (doc.getObject("YZ_Plane014"), [""])
sketch13.MapMode = "FlatFace"
sketch13.AttachmentOffset = App.Placement(App.Vector(0, 0, 301.776695), App.Rotation())
sketch13.addGeometry([
    Part.Circle(App.Vector(115, 140, 0), App.Vector(0, 0, 1), 4),
    Part.Circle(App.Vector(115, 10, 0), App.Vector(0, 0, 1), 4),
    Part.Circle(App.Vector(-115, 10, 0), App.Vector(0, 0, 1), 4),
    Part.Circle(App.Vector(-115, 140, 0), App.Vector(0, 0, 1), 4),
], False)
sketch13.addConstraint([
    Sketcher.Constraint("Equal", 0, 1),
    Sketcher.Constraint("Equal", 1, 2),
    Sketcher.Constraint("Equal", 2, 3),
    Sketcher.Constraint("Symmetric", 1, 3, 2, 3, -2),
    Sketcher.Constraint("Symmetric", 0, 3, 3, 3, -2),
    Sketcher.Constraint("Vertical", 0, 3, 1, 3),
    Sketcher.Constraint("Diameter", 0, Q("8 mm")),
    Sketcher.Constraint("DistanceX", -1, 1, 0, 3, Q("115 mm")),
    Sketcher.Constraint("DistanceY", -1, 1, 0, 3, Q("140 mm")),
    Sketcher.Constraint("DistanceY", -1, 1, 1, 3, Q("10 mm")),
])
pad13 = body15.newObject("PartDesign::Pad", "Pad012")
pad13.Profile = sketch13
pad13.Length = 10
pad13.Reversed = True
doc.recompute()

body16 = doc.addObject("PartDesign::Body", "Body015")
body16.BaseFeature = body15
boolean5 = body.newObject("PartDesign::Boolean", "Boolean004")
boolean5.Type = "Cut"
boolean5.addObjects([body16])
doc.recompute()

boolean6 = body10.newObject("PartDesign::Boolean", "Boolean005")
boolean6.Type = "Cut"
boolean6.addObjects([body15])
body17 = doc.addObject("PartDesign::Body", "Body016")
body17.AllowCompound = True

sketch14 = body17.newObject("Sketcher::SketchObject", "Sketch013")
sketch14.Placement = App.Placement(App.Vector(213.388348, 213.388348, 0), App.Rotation(App.Vector(0, 0, -1), App.Vector(-0.707106781, 0.707106781, 0), App.Vector(0.707106781, 0.707106781, 0), "ZXY"))
sketch14.addGeometry([
    Part.Circle(App.Vector(-140, 115, 0), App.Vector(0, 0, 1), 4),
    Part.Circle(App.Vector(-10, 115, 0), App.Vector(0, 0, 1), 4),
    Part.Circle(App.Vector(-10, -115, 0), App.Vector(0, 0, 1), 4),
    Part.Circle(App.Vector(-140, -115, 0), App.Vector(0, 0, 1), 4),
], False)
sketch14.addConstraint([
    Sketcher.Constraint("Equal", 0, 1),
    Sketcher.Constraint("Equal", 1, 2),
    Sketcher.Constraint("Equal", 2, 3),
    Sketcher.Constraint("Symmetric", 1, 3, 2, 3, -1),
    Sketcher.Constraint("Symmetric", 0, 3, 3, 3, -1),
    Sketcher.Constraint("Horizontal", 0, 3, 1, 3),
    Sketcher.Constraint("Diameter", 0, Q("8 mm")),
    Sketcher.Constraint("DistanceX", 0, 3, -1, 1, Q("140 mm")),
    Sketcher.Constraint("DistanceY", -1, 1, 0, 3, Q("115 mm")),
    Sketcher.Constraint("DistanceX", 1, 3, -1, 1, Q("10 mm")),
])
pad14 = body17.newObject("PartDesign::Pad", "Pad013")
pad14.Profile = sketch14
pad14.Length = 10
pad14.Reversed = True
doc.recompute()

body18 = doc.addObject("PartDesign::Body", "Body017")
body18.BaseFeature = body17
boolean7 = body.newObject("PartDesign::Boolean", "Boolean006")
boolean7.Type = "Cut"
boolean7.addObjects([body18])
doc.recompute()

boolean8 = body10.newObject("PartDesign::Boolean", "Boolean007")
boolean8.Type = "Cut"
boolean8.addObjects([body17])
body19 = doc.addObject("PartDesign::Body", "Body018")
body19.AllowCompound = True

sketch15 = body19.newObject("Sketcher::SketchObject", "Sketch014")
sketch15.AttachmentSupport = (doc.getObject("XZ_Plane018"), [""])
sketch15.MapMode = "FlatFace"
sketch15.AttachmentOffset = App.Placement(App.Vector(0, 0, -291.776695), App.Rotation())
sketch15.addGeometry([
    Part.Circle(App.Vector(-115, 10, 0), App.Vector(0, 0, 1), 4),
    Part.Circle(App.Vector(-115, 140, 0), App.Vector(0, 0, 1), 4),
    Part.Circle(App.Vector(115, 140, 0), App.Vector(0, 0, 1), 4),
    Part.Circle(App.Vector(115, 10, 0), App.Vector(0, 0, 1), 4),
], False)
sketch15.addConstraint([
    Sketcher.Constraint("Equal", 0, 1),
    Sketcher.Constraint("Equal", 1, 2),
    Sketcher.Constraint("Equal", 2, 3),
    Sketcher.Constraint("Symmetric", 1, 3, 2, 3, -2),
    Sketcher.Constraint("Symmetric", 0, 3, 3, 3, -2),
    Sketcher.Constraint("Vertical", 0, 3, 1, 3),
    Sketcher.Constraint("Diameter", 0, Q("8 mm")),
    Sketcher.Constraint("DistanceX", 0, 3, -1, 1, Q("115 mm")),
    Sketcher.Constraint("DistanceY", -1, 1, 0, 3, Q("10 mm")),
    Sketcher.Constraint("DistanceY", -1, 1, 1, 3, Q("140 mm")),
])
pad15 = body19.newObject("PartDesign::Pad", "Pad014")
pad15.Profile = sketch15
pad15.Length = 10
pad15.Reversed = True
doc.recompute()

body20 = doc.addObject("PartDesign::Body", "Body019")
body20.BaseFeature = body19
boolean9 = body.newObject("PartDesign::Boolean", "Boolean008")
boolean9.Type = "Cut"
boolean9.addObjects([body20])
doc.recompute()

boolean10 = body10.newObject("PartDesign::Boolean", "Boolean009")
boolean10.Type = "Cut"
boolean10.addObjects([body19])
body21 = doc.addObject("PartDesign::Body", "Body020")
body21.AllowCompound = True

sketch16 = body21.newObject("Sketcher::SketchObject", "Sketch015")
sketch16.Placement = App.Placement(App.Vector(-206.31728, 206.31728, 0), App.Rotation(App.Vector(0, 0, 1), App.Vector(0.707106781, 0.707106781, 0), App.Vector(-0.707106781, 0.707106781, 0), "ZXY"))
sketch16.addGeometry([
    Part.Circle(App.Vector(10, 115, 0), App.Vector(0, 0, 1), 4),
    Part.Circle(App.Vector(140, 115, 0), App.Vector(0, 0, 1), 4),
    Part.Circle(App.Vector(140, -115, 0), App.Vector(0, 0, 1), 4),
    Part.Circle(App.Vector(10, -115, 0), App.Vector(0, 0, 1), 4),
], False)
sketch16.addConstraint([
    Sketcher.Constraint("Equal", 0, 1),
    Sketcher.Constraint("Equal", 1, 2),
    Sketcher.Constraint("Equal", 2, 3),
    Sketcher.Constraint("Symmetric", 1, 3, 2, 3, -1),
    Sketcher.Constraint("Symmetric", 0, 3, 3, 3, -1),
    Sketcher.Constraint("Horizontal", 0, 3, 1, 3),
    Sketcher.Constraint("Diameter", 0, Q("8 mm")),
    Sketcher.Constraint("DistanceX", -1, 1, 0, 3, Q("10 mm")),
    Sketcher.Constraint("DistanceY", -1, 1, 0, 3, Q("115 mm")),
    Sketcher.Constraint("DistanceX", -1, 1, 1, 3, Q("140 mm")),
])
pad16 = body21.newObject("PartDesign::Pad", "Pad015")
pad16.Profile = sketch16
pad16.Length = 10
doc.recompute()

body22 = doc.addObject("PartDesign::Body", "Body021")
body22.BaseFeature = body21
boolean11 = body.newObject("PartDesign::Boolean", "Boolean010")
boolean11.Type = "Cut"
boolean11.addObjects([body22])
doc.recompute()

boolean12 = body10.newObject("PartDesign::Boolean", "Boolean011")
boolean12.Type = "Cut"
boolean12.addObjects([body21])
body23 = doc.addObject("PartDesign::Body", "Body022")
body23.AllowCompound = True

sketch17 = body23.newObject("Sketcher::SketchObject", "Sketch016")
sketch17.AttachmentSupport = (doc.getObject("YZ_Plane022"), [""])
sketch17.MapMode = "FlatFace"
sketch17.AttachmentOffset = App.Placement(App.Vector(0, 0, -291.776695), App.Rotation())
sketch17.addGeometry([
    Part.Circle(App.Vector(115, 10, 0), App.Vector(0, 0, 1), 4),
    Part.Circle(App.Vector(115, 140, 0), App.Vector(0, 0, 1), 4),
    Part.Circle(App.Vector(-115, 140, 0), App.Vector(0, 0, 1), 4),
    Part.Circle(App.Vector(-115, 10, 0), App.Vector(0, 0, 1), 4),
], False)
sketch17.addConstraint([
    Sketcher.Constraint("Equal", 0, 1),
    Sketcher.Constraint("Equal", 1, 2),
    Sketcher.Constraint("Equal", 2, 3),
    Sketcher.Constraint("Symmetric", 1, 3, 2, 3, -2),
    Sketcher.Constraint("Symmetric", 0, 3, 3, 3, -2),
    Sketcher.Constraint("Vertical", 0, 3, 1, 3),
    Sketcher.Constraint("Diameter", 0, Q("8 mm")),
    Sketcher.Constraint("DistanceX", -1, 1, 0, 3, Q("115 mm")),
    Sketcher.Constraint("DistanceY", -1, 1, 0, 3, Q("10 mm")),
    Sketcher.Constraint("DistanceY", -1, 1, 1, 3, Q("140 mm")),
])
pad17 = body23.newObject("PartDesign::Pad", "Pad016")
pad17.Profile = sketch17
pad17.Length = 10
pad17.Reversed = True
doc.recompute()

body24 = doc.addObject("PartDesign::Body", "Body023")
body24.BaseFeature = body23
boolean13 = body.newObject("PartDesign::Boolean", "Boolean012")
boolean13.Type = "Cut"
boolean13.addObjects([body24])
doc.recompute()

boolean14 = body10.newObject("PartDesign::Boolean", "Boolean013")
boolean14.Type = "Cut"
boolean14.addObjects([body23])
body25 = doc.addObject("PartDesign::Body", "Body024")
body25.AllowCompound = True

sketch18 = body25.newObject("Sketcher::SketchObject", "Sketch017")
sketch18.Placement = App.Placement(App.Vector(-206.31728, -206.31728, 0), App.Rotation(App.Vector(0, 0, 1), App.Vector(-0.707106781, 0.707106781, 0), App.Vector(-0.707106781, -0.707106781, 0), "ZXY"))
sketch18.addGeometry([
    Part.Circle(App.Vector(10, 115, 0), App.Vector(0, 0, 1), 4),
    Part.Circle(App.Vector(140, 115, 0), App.Vector(0, 0, 1), 4),
    Part.Circle(App.Vector(140, -115, 0), App.Vector(0, 0, 1), 4),
    Part.Circle(App.Vector(10, -115, 0), App.Vector(0, 0, 1), 4),
], False)
sketch18.addConstraint([
    Sketcher.Constraint("Equal", 0, 1),
    Sketcher.Constraint("Equal", 1, 2),
    Sketcher.Constraint("Equal", 2, 3),
    Sketcher.Constraint("Symmetric", 1, 3, 2, 3, -1),
    Sketcher.Constraint("Symmetric", 0, 3, 3, 3, -1),
    Sketcher.Constraint("Horizontal", 0, 3, 1, 3),
    Sketcher.Constraint("Diameter", 0, Q("8 mm")),
    Sketcher.Constraint("DistanceX", -1, 1, 0, 3, Q("10 mm")),
    Sketcher.Constraint("DistanceY", -1, 1, 0, 3, Q("115 mm")),
    Sketcher.Constraint("DistanceX", -1, 1, 1, 3, Q("140 mm")),
])
pad18 = body25.newObject("PartDesign::Pad", "Pad017")
pad18.Profile = sketch18
pad18.Length = 10
doc.recompute()

body26 = doc.addObject("PartDesign::Body", "Body025")
body26.BaseFeature = body25
boolean15 = body.newObject("PartDesign::Boolean", "Boolean014")
boolean15.Type = "Cut"
boolean15.addObjects([body26])
doc.recompute()

sketch19 = body.newObject("Sketcher::SketchObject", "Sketch018")
sketch19.AttachmentSupport = (doc.getObject("YZ_Plane"), [""])
sketch19.MapMode = "FlatFace"
sketch19.AttachmentOffset = App.Placement(App.Vector(0, 0, -301.776695), App.Rotation())
sketch19.addGeometry([
    Part.LineSegment(App.Vector(65, 0, 0), App.Vector(-65.001823, 0, 0)),
    Part.LineSegment(App.Vector(-65.001823, 0, 0), App.Vector(-65.001823, 20, 0)),
    Part.LineSegment(App.Vector(-65.001823, 20, 0), App.Vector(65, 20, 0)),
    Part.LineSegment(App.Vector(65, 20, 0), App.Vector(65, 0, 0)),
], False)
sketch19.addConstraint([
    Sketcher.Constraint("Coincident", 0, 2, 1, 1),
    Sketcher.Constraint("Coincident", 1, 2, 2, 1),
    Sketcher.Constraint("Coincident", 2, 2, 3, 1),
    Sketcher.Constraint("Coincident", 3, 2, 0, 1),
    Sketcher.Constraint("Horizontal", 0),
    Sketcher.Constraint("Vertical", 1),
    Sketcher.Constraint("Horizontal", 2),
    Sketcher.Constraint("Vertical", 3),
    Sketcher.Constraint("PointOnObject", 0, 2, -1),
    Sketcher.Constraint("DistanceY", 1, 1, 1, 2, Q("20 mm")),
    Sketcher.Constraint("DistanceX", -1, 1, 2, 2, Q("65 mm")),
    Sketcher.Constraint("DistanceX", 0, 2, 0, 1, Q("130.001823 mm")),
])
pocket1 = body.newObject("PartDesign::Pocket", "Pocket")
pocket1.Profile = sketch19
pocket1.Length = 20
pocket1.Reversed = True
doc.recompute()

boolean16 = body10.newObject("PartDesign::Boolean", "Boolean015")
boolean16.Type = "Cut"
boolean16.addObjects([body25])

doc.recompute()
